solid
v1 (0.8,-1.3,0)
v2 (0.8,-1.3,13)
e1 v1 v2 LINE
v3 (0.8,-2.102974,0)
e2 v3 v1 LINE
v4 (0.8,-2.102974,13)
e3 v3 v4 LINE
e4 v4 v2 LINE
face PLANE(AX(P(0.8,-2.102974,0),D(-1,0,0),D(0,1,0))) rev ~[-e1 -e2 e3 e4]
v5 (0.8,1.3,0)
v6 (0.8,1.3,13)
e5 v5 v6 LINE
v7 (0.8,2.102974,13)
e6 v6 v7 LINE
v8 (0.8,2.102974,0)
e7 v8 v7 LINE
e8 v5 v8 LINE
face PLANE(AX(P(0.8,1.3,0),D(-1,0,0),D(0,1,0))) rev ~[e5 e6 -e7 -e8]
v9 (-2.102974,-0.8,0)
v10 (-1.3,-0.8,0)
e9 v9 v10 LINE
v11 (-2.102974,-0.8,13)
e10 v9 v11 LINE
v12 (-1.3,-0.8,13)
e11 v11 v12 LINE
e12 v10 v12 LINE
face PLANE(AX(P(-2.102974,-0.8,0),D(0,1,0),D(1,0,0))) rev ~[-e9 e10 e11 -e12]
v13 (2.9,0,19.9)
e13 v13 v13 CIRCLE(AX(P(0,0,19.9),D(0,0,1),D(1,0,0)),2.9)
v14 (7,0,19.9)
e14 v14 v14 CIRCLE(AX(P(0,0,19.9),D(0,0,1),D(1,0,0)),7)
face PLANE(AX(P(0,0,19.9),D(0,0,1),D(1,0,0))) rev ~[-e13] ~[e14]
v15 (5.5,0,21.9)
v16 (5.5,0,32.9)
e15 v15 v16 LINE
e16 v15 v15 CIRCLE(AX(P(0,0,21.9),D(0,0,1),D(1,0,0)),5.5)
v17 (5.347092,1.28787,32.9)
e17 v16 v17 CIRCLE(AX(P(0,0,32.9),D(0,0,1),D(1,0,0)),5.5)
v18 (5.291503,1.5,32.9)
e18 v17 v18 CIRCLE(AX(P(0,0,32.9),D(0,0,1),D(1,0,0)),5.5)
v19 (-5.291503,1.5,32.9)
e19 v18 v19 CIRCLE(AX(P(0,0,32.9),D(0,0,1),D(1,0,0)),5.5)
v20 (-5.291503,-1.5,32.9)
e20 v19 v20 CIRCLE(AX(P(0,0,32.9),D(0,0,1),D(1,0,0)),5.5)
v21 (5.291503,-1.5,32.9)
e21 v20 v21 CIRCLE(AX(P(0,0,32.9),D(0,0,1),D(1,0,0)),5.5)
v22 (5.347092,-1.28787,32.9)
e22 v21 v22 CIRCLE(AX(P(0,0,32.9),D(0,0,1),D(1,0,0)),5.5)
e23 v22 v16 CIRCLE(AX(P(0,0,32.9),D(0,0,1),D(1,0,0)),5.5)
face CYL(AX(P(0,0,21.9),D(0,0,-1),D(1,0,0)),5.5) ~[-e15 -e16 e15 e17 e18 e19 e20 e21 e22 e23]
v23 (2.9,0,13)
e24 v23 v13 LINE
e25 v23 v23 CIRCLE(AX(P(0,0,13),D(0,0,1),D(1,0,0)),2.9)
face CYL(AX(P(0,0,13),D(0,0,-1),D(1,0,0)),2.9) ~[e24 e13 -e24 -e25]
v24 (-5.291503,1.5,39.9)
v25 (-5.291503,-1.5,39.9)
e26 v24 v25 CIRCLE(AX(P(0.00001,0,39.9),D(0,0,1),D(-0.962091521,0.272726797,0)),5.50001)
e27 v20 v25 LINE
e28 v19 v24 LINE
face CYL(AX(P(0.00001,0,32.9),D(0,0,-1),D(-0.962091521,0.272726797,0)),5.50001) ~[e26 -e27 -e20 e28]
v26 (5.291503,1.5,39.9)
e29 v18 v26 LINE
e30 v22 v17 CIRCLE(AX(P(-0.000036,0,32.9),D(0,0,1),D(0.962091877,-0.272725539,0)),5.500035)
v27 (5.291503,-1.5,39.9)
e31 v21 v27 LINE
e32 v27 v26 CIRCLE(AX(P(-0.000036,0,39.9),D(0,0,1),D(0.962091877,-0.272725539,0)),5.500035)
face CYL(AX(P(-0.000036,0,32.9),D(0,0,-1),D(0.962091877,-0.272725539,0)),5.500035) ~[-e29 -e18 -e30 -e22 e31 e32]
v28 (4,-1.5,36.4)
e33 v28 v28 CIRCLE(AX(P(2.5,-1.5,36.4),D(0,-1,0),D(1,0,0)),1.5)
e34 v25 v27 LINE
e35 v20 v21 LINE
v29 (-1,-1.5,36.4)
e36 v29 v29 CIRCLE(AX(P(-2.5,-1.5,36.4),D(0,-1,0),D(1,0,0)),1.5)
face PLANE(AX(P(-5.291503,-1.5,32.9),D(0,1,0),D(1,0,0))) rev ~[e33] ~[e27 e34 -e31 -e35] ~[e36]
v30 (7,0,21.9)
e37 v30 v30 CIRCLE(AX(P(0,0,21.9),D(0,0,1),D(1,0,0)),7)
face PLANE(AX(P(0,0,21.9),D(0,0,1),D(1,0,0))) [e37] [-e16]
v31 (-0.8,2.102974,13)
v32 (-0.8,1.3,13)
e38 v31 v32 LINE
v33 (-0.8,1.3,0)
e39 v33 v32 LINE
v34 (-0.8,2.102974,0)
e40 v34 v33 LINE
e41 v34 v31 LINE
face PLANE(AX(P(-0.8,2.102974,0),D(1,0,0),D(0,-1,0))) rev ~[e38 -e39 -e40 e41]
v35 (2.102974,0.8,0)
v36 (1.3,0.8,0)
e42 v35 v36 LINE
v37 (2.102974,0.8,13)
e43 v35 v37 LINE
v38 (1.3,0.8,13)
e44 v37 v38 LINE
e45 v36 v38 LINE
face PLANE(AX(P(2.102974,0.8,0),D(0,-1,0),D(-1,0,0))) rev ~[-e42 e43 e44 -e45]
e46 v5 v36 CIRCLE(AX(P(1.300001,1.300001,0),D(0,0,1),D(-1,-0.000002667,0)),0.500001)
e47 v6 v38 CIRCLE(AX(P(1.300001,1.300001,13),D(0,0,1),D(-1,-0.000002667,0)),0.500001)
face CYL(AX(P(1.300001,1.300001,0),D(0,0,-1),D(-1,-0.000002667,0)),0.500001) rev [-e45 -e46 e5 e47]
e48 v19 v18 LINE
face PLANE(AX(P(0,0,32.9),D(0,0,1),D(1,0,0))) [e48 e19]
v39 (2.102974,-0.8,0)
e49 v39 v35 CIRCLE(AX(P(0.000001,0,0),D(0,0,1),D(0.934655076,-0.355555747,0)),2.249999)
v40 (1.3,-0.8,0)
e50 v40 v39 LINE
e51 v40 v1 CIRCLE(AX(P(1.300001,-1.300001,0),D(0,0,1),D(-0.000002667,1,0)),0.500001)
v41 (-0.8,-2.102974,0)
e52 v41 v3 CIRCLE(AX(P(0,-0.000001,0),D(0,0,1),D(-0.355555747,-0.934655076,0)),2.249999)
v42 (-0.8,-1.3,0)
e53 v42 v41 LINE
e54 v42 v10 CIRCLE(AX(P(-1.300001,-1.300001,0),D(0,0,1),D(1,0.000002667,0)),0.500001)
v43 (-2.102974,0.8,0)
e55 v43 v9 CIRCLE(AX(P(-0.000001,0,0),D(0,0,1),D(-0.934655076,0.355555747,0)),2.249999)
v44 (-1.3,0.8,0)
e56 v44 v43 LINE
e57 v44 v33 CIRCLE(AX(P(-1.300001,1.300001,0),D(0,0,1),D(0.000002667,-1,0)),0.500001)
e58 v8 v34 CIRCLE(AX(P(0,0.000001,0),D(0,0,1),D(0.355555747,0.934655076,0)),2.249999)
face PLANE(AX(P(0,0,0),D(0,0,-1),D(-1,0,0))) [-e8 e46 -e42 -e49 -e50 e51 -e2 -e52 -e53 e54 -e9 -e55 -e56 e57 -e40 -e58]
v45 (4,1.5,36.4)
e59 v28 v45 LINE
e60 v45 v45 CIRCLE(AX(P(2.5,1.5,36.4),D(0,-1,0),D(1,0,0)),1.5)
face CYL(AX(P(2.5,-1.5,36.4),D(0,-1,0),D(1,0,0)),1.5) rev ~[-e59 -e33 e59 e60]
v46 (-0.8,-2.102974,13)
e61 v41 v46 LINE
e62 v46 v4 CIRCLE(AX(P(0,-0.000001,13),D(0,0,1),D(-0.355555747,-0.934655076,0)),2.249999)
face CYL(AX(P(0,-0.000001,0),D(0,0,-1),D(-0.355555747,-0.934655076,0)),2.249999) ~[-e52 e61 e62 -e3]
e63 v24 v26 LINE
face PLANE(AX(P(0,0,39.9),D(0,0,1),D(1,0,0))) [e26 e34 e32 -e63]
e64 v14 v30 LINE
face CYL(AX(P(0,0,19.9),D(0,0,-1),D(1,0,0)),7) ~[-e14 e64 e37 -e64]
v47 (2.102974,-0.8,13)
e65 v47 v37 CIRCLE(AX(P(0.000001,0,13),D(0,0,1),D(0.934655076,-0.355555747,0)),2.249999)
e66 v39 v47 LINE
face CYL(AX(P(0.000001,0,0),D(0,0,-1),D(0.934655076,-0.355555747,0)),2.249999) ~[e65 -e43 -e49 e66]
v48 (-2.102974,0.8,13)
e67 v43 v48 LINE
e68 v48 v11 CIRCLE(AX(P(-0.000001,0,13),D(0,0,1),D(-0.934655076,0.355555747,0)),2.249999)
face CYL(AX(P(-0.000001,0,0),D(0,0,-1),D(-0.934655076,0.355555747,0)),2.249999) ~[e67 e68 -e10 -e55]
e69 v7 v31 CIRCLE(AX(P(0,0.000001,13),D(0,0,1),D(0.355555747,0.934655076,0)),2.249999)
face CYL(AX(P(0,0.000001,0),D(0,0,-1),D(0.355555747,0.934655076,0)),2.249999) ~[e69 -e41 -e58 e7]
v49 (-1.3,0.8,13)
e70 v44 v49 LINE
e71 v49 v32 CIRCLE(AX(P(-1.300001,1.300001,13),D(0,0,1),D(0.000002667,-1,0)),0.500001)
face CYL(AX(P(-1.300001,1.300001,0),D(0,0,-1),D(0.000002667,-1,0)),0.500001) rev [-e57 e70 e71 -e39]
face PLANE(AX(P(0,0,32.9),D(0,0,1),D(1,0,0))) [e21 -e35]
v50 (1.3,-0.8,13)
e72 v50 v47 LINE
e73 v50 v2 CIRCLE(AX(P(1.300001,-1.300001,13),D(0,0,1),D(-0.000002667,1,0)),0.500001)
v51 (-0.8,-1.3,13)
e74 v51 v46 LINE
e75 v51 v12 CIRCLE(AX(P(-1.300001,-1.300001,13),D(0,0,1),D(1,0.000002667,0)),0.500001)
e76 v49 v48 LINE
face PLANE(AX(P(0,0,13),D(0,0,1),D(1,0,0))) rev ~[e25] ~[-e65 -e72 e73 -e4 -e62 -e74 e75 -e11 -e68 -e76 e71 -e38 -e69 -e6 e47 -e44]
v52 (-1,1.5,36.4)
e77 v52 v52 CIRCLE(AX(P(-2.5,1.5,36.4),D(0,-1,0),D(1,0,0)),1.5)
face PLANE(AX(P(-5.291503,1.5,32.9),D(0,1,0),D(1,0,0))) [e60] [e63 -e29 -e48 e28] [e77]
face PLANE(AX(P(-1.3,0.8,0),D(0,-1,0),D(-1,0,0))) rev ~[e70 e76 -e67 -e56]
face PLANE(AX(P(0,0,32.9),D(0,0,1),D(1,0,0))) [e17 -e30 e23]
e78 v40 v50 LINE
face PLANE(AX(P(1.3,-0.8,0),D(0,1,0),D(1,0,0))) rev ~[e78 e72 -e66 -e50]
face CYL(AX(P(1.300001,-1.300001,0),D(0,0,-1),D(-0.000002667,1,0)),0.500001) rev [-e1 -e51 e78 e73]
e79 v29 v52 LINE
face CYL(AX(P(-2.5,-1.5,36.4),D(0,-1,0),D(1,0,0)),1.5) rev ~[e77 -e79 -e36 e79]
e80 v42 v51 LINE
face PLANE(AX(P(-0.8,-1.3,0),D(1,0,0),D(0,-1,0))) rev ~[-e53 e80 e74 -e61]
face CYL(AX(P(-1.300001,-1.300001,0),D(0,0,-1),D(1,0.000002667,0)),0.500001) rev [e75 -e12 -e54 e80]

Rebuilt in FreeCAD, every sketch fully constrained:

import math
import FreeCAD as App
import Part
import Sketcher

V = App.Vector

doc = App.newDocument("Part")
params = doc.addObject("Spreadsheet::Sheet", "Params")
for row, (alias, value) in enumerate([
    ("sketch1_radius", "0.500001 mm"),
    ("sketch1_radius2", "2.249999 mm"),
    ("pad1_length", "13 mm"),
    ("sketch2_diameter", "5.8 mm"),
    ("pad2_length", "6.9 mm"),
    ("sketch3_diameter", "14 mm"),
    ("pad3_length", "2 mm"),
    ("sketch4_diameter", "11 mm"),
    ("pad4_length", "11 mm"),
    ("pad5_length", "7 mm"),
    ("sketch6_diameter", "3 mm"),
    ("pocket1_length", "3 mm"),
], start=1):
    params.set(f"A{row}", alias)
    params.set(f"B{row}", "=" + value)
    params.setAlias(f"B{row}", alias)

body = doc.addObject("PartDesign::Body", "Body")

sketch1 = body.newObject("Sketcher::SketchObject", "Sketch")
sketch1.AttachmentSupport = (doc.getObject("XY_Plane"), [""])
sketch1.MapMode = "FlatFace"
sketch1.addGeometry([
    Part.ArcOfCircle(Part.Circle(V(-1.3, -1.3, 0), V(0, 0, 1), 0.5), math.radians(0), math.radians(90)),
    Part.LineSegment(V(-0.8, -1.3, 0), V(-0.8, -2.1, 0)),
    Part.ArcOfCircle(Part.Circle(V(0, 0, 0), V(0, 0, 1), 2.2), math.radians(-111), math.radians(-69)),
    Part.LineSegment(V(0.8, -2.1, 0), V(0.8, -1.3, 0)),
    Part.ArcOfCircle(Part.Circle(V(1.3, -1.3, 0), V(0, 0, 1), 0.5), math.radians(90), math.radians(180)),
    Part.LineSegment(V(1.3, -0.8, 0), V(2.1, -0.8, 0)),
    Part.ArcOfCircle(Part.Circle(V(0, 0, 0), V(0, 0, 1), 2.2), math.radians(-21), math.radians(21)),
    Part.LineSegment(V(2.1, 0.8, 0), V(1.3, 0.8, 0)),
    Part.ArcOfCircle(Part.Circle(V(1.3, 1.3, 0), V(0, 0, 1), 0.5), math.radians(-180), math.radians(-90)),
    Part.LineSegment(V(0.8, 1.3, 0), V(0.8, 2.1, 0)),
    Part.ArcOfCircle(Part.Circle(V(0, 0, 0), V(0, 0, 1), 2.2), math.radians(69), math.radians(111)),
    Part.LineSegment(V(-0.8, 2.1, 0), V(-0.8, 1.3, 0)),
    Part.ArcOfCircle(Part.Circle(V(-1.3, 1.3, 0), V(0, 0, 1), 0.5), math.radians(-90), math.radians(0)),
    Part.LineSegment(V(-1.3, 0.8, 0), V(-2.1, 0.8, 0)),
    Part.ArcOfCircle(Part.Circle(V(0, 0, 0), V(0, 0, 1), 2.2), math.radians(159), math.radians(201)),
    Part.LineSegment(V(-2.1, -0.8, 0), V(-1.3, -0.8, 0)),
], False)
sketch1.addConstraint([
    Sketcher.Constraint("Coincident", 0, 1, 1, 1),
    Sketcher.Constraint("Coincident", 1, 2, 2, 1),
    Sketcher.Constraint("Coincident", 2, 2, 3, 1),
    Sketcher.Constraint("Coincident", 3, 2, 4, 2),
    Sketcher.Constraint("Coincident", 4, 1, 5, 1),
    Sketcher.Constraint("Coincident", 5, 2, 6, 1),
    Sketcher.Constraint("Coincident", 6, 2, 7, 1),
    Sketcher.Constraint("Coincident", 7, 2, 8, 2),
    Sketcher.Constraint("Coincident", 8, 1, 9, 1),
    Sketcher.Constraint("Coincident", 9, 2, 10, 1),
    Sketcher.Constraint("Coincident", 10, 2, 11, 1),
    Sketcher.Constraint("Coincident", 11, 2, 12, 2),
    Sketcher.Constraint("Coincident", 12, 1, 13, 1),
    Sketcher.Constraint("Coincident", 13, 2, 14, 1),
    Sketcher.Constraint("Coincident", 14, 2, 15, 1),
    Sketcher.Constraint("Coincident", 15, 2, 0, 2),
    Sketcher.Constraint("Vertical", 1),
    Sketcher.Constraint("Vertical", 3),
    Sketcher.Constraint("Horizontal", 5),
    Sketcher.Constraint("Horizontal", 7),
    Sketcher.Constraint("Vertical", 9),
    Sketcher.Constraint("Vertical", 11),
    Sketcher.Constraint("Horizontal", 13),
    Sketcher.Constraint("Horizontal", 15),
    Sketcher.Constraint("Coincident", 2, 3, -1, 1),
    Sketcher.Constraint("Coincident", 6, 3, -1, 1),
    Sketcher.Constraint("Coincident", 10, 3, -1, 1),
    Sketcher.Constraint("Coincident", 14, 3, -1, 1),
    Sketcher.Constraint("Equal", 0, 4),
    Sketcher.Constraint("Equal", 2, 6),
    Sketcher.Constraint("Equal", 4, 8),
    Sketcher.Constraint("Equal", 6, 10),
    Sketcher.Constraint("Equal", 8, 12),
    Sketcher.Constraint("Equal", 10, 14),
    Sketcher.Constraint("Symmetric", 0, 3, 8, 3, -1, 1),
    Sketcher.Constraint("Symmetric", 4, 3, 12, 3, -1, 1),
    Sketcher.Constraint("Symmetric", 0, 3, 4, 3, -2),
    Sketcher.Constraint("Horizontal", 4, 3, 0, 1),
    Sketcher.Constraint("Horizontal", 0, 1, 3, 2),
    Sketcher.Constraint("Horizontal", 12, 3, 8, 1),
    Sketcher.Constraint("Horizontal", 8, 1, 11, 2),
    Sketcher.Constraint("Vertical", 8, 3, 4, 1),
    Sketcher.Constraint("Vertical", 4, 1, 7, 2),
    Sketcher.Constraint("Vertical", 0, 3, 12, 1),
    Sketcher.Constraint("Vertical", 12, 1, 15, 2),
    Sketcher.Constraint("Equal", 15, 1),
    Sketcher.Constraint("Radius", 0, 0.500001),
    Sketcher.Constraint("Radius", 2, 2.249999),
    Sketcher.Constraint("DistanceX", 0, 3, -1, 1, 1.300001),
])
sketch1.setExpression("Constraints[46]", "Params.sketch1_radius")
sketch1.setExpression("Constraints[47]", "Params.sketch1_radius2")
pad1 = body.newObject("PartDesign::Pad", "Pad")
pad1.Profile = sketch1
pad1.setExpression("Length", "Params.pad1_length")

sketch2 = body.newObject("Sketcher::SketchObject", "Sketch001")
sketch2.AttachmentSupport = (doc.getObject("XY_Plane"), [""])
sketch2.MapMode = "FlatFace"
sketch2.AttachmentOffset = App.Placement(V(0, 0, 13), App.Rotation())
sketch2.addGeometry(Part.Circle(V(0, 0, 0), V(0, 0, 1), 2.9), False)
sketch2.addConstraint([
    Sketcher.Constraint("Coincident", 0, 3, -1, 1),
    Sketcher.Constraint("Diameter", 0, 5.8),
])
sketch2.setExpression("Constraints[1]", "Params.sketch2_diameter")
pad2 = body.newObject("PartDesign::Pad", "Pad001")
pad2.Profile = sketch2
pad2.setExpression("Length", "Params.pad2_length")

sketch3 = body.newObject("Sketcher::SketchObject", "Sketch002")
sketch3.AttachmentSupport = (doc.getObject("XY_Plane"), [""])
sketch3.MapMode = "FlatFace"
sketch3.AttachmentOffset = App.Placement(V(0, 0, 19.9), App.Rotation())
sketch3.addGeometry(Part.Circle(V(0, 0, 0), V(0, 0, 1), 7), False)
sketch3.addConstraint([
    Sketcher.Constraint("Coincident", 0, 3, -1, 1),
    Sketcher.Constraint("Diameter", 0, 14.0),
])
sketch3.setExpression("Constraints[1]", "Params.sketch3_diameter")
pad3 = body.newObject("PartDesign::Pad", "Pad002")
pad3.Profile = sketch3
pad3.setExpression("Length", "Params.pad3_length")

sketch4 = body.newObject("Sketcher::SketchObject", "Sketch003")
sketch4.AttachmentSupport = (doc.getObject("XY_Plane"), [""])
sketch4.MapMode = "FlatFace"
sketch4.AttachmentOffset = App.Placement(V(0, 0, 21.9), App.Rotation())
sketch4.addGeometry(Part.Circle(V(0, 0, 0), V(0, 0, 1), 6), False)
sketch4.addConstraint([
    Sketcher.Constraint("Coincident", 0, 3, -1, 1),
    Sketcher.Constraint("Diameter", 0, 11.0),
])
sketch4.setExpression("Constraints[1]", "Params.sketch4_diameter")
pad4 = body.newObject("PartDesign::Pad", "Pad003")
pad4.Profile = sketch4
pad4.setExpression("Length", "Params.pad4_length")

sketch5 = body.newObject("Sketcher::SketchObject", "Sketch004")
sketch5.AttachmentSupport = (doc.getObject("XY_Plane"), [""])
sketch5.MapMode = "FlatFace"
sketch5.AttachmentOffset = App.Placement(V(0, 0, 32.9), App.Rotation())
sketch5.addGeometry([
    Part.LineSegment(V(-5.3, -1.5, 0), V(5.3, -1.5, 0)),
    Part.ArcOfCircle(Part.Circle(V(0, 0, 0), V(0, 0, 1), 5.5), math.radians(-16), math.radians(16)),
    Part.LineSegment(V(5.3, 1.5, 0), V(-5.3, 1.5, 0)),
    Part.ArcOfCircle(Part.Circle(V(0, 0, 0), V(0, 0, 1), 5.5), math.radians(164), math.radians(196)),
], False)
sketch5.addConstraint([
    Sketcher.Constraint("Coincident", 0, 2, 1, 1),
    Sketcher.Constraint("Coincident", 1, 2, 2, 1),
    Sketcher.Constraint("Coincident", 2, 2, 3, 1),
    Sketcher.Constraint("Coincident", 3, 2, 0, 1),
    Sketcher.Constraint("Horizontal", 0),
    Sketcher.Constraint("Horizontal", 2),
    Sketcher.Constraint("Coincident", 3, 3, -1, 1),
    Sketcher.Constraint("Symmetric", 0, 2, 2, 2, -1, 1),
    Sketcher.Constraint("PointOnObject", 1, 3, -1),
    Sketcher.Constraint("DistanceY", 0, 2, 1, 2, 3.0),
    Sketcher.Constraint("Radius", 3, 5.50001),
    Sketcher.Constraint("Radius", 1, 5.500035),
])
pad5 = body.newObject("PartDesign::Pad", "Pad004")
pad5.Profile = sketch5
pad5.setExpression("Length", "Params.pad5_length")

sketch6 = body.newObject("Sketcher::SketchObject", "Sketch005")
sketch6.AttachmentSupport = (doc.getObject("XZ_Plane"), [""])
sketch6.MapMode = "FlatFace"
sketch6.AttachmentOffset = App.Placement(V(0, 0, 1.5), App.Rotation())
sketch6.addGeometry([
    Part.Circle(V(2.5, 36.4, 0), V(0, 0, 1), 1.5),
    Part.Circle(V(-2.5, 36.4, 0), V(0, 0, 1), 1.5),
], False)
sketch6.addConstraint([
    Sketcher.Constraint("Equal", 0, 1),
    Sketcher.Constraint("Symmetric", 0, 3, 1, 3, -2),
    Sketcher.Constraint("Diameter", 0, 3.0),
    Sketcher.Constraint("DistanceX", 1, 3, 0, 3, 5.0),
    Sketcher.Constraint("DistanceY", -1, 1, 0, 3, 36.4),
])
sketch6.setExpression("Constraints[2]", "Params.sketch6_diameter")
pocket1 = body.newObject("PartDesign::Pocket", "Pocket")
pocket1.Profile = sketch6
pocket1.setExpression("Length", "Params.pocket1_length")

doc.recompute()
